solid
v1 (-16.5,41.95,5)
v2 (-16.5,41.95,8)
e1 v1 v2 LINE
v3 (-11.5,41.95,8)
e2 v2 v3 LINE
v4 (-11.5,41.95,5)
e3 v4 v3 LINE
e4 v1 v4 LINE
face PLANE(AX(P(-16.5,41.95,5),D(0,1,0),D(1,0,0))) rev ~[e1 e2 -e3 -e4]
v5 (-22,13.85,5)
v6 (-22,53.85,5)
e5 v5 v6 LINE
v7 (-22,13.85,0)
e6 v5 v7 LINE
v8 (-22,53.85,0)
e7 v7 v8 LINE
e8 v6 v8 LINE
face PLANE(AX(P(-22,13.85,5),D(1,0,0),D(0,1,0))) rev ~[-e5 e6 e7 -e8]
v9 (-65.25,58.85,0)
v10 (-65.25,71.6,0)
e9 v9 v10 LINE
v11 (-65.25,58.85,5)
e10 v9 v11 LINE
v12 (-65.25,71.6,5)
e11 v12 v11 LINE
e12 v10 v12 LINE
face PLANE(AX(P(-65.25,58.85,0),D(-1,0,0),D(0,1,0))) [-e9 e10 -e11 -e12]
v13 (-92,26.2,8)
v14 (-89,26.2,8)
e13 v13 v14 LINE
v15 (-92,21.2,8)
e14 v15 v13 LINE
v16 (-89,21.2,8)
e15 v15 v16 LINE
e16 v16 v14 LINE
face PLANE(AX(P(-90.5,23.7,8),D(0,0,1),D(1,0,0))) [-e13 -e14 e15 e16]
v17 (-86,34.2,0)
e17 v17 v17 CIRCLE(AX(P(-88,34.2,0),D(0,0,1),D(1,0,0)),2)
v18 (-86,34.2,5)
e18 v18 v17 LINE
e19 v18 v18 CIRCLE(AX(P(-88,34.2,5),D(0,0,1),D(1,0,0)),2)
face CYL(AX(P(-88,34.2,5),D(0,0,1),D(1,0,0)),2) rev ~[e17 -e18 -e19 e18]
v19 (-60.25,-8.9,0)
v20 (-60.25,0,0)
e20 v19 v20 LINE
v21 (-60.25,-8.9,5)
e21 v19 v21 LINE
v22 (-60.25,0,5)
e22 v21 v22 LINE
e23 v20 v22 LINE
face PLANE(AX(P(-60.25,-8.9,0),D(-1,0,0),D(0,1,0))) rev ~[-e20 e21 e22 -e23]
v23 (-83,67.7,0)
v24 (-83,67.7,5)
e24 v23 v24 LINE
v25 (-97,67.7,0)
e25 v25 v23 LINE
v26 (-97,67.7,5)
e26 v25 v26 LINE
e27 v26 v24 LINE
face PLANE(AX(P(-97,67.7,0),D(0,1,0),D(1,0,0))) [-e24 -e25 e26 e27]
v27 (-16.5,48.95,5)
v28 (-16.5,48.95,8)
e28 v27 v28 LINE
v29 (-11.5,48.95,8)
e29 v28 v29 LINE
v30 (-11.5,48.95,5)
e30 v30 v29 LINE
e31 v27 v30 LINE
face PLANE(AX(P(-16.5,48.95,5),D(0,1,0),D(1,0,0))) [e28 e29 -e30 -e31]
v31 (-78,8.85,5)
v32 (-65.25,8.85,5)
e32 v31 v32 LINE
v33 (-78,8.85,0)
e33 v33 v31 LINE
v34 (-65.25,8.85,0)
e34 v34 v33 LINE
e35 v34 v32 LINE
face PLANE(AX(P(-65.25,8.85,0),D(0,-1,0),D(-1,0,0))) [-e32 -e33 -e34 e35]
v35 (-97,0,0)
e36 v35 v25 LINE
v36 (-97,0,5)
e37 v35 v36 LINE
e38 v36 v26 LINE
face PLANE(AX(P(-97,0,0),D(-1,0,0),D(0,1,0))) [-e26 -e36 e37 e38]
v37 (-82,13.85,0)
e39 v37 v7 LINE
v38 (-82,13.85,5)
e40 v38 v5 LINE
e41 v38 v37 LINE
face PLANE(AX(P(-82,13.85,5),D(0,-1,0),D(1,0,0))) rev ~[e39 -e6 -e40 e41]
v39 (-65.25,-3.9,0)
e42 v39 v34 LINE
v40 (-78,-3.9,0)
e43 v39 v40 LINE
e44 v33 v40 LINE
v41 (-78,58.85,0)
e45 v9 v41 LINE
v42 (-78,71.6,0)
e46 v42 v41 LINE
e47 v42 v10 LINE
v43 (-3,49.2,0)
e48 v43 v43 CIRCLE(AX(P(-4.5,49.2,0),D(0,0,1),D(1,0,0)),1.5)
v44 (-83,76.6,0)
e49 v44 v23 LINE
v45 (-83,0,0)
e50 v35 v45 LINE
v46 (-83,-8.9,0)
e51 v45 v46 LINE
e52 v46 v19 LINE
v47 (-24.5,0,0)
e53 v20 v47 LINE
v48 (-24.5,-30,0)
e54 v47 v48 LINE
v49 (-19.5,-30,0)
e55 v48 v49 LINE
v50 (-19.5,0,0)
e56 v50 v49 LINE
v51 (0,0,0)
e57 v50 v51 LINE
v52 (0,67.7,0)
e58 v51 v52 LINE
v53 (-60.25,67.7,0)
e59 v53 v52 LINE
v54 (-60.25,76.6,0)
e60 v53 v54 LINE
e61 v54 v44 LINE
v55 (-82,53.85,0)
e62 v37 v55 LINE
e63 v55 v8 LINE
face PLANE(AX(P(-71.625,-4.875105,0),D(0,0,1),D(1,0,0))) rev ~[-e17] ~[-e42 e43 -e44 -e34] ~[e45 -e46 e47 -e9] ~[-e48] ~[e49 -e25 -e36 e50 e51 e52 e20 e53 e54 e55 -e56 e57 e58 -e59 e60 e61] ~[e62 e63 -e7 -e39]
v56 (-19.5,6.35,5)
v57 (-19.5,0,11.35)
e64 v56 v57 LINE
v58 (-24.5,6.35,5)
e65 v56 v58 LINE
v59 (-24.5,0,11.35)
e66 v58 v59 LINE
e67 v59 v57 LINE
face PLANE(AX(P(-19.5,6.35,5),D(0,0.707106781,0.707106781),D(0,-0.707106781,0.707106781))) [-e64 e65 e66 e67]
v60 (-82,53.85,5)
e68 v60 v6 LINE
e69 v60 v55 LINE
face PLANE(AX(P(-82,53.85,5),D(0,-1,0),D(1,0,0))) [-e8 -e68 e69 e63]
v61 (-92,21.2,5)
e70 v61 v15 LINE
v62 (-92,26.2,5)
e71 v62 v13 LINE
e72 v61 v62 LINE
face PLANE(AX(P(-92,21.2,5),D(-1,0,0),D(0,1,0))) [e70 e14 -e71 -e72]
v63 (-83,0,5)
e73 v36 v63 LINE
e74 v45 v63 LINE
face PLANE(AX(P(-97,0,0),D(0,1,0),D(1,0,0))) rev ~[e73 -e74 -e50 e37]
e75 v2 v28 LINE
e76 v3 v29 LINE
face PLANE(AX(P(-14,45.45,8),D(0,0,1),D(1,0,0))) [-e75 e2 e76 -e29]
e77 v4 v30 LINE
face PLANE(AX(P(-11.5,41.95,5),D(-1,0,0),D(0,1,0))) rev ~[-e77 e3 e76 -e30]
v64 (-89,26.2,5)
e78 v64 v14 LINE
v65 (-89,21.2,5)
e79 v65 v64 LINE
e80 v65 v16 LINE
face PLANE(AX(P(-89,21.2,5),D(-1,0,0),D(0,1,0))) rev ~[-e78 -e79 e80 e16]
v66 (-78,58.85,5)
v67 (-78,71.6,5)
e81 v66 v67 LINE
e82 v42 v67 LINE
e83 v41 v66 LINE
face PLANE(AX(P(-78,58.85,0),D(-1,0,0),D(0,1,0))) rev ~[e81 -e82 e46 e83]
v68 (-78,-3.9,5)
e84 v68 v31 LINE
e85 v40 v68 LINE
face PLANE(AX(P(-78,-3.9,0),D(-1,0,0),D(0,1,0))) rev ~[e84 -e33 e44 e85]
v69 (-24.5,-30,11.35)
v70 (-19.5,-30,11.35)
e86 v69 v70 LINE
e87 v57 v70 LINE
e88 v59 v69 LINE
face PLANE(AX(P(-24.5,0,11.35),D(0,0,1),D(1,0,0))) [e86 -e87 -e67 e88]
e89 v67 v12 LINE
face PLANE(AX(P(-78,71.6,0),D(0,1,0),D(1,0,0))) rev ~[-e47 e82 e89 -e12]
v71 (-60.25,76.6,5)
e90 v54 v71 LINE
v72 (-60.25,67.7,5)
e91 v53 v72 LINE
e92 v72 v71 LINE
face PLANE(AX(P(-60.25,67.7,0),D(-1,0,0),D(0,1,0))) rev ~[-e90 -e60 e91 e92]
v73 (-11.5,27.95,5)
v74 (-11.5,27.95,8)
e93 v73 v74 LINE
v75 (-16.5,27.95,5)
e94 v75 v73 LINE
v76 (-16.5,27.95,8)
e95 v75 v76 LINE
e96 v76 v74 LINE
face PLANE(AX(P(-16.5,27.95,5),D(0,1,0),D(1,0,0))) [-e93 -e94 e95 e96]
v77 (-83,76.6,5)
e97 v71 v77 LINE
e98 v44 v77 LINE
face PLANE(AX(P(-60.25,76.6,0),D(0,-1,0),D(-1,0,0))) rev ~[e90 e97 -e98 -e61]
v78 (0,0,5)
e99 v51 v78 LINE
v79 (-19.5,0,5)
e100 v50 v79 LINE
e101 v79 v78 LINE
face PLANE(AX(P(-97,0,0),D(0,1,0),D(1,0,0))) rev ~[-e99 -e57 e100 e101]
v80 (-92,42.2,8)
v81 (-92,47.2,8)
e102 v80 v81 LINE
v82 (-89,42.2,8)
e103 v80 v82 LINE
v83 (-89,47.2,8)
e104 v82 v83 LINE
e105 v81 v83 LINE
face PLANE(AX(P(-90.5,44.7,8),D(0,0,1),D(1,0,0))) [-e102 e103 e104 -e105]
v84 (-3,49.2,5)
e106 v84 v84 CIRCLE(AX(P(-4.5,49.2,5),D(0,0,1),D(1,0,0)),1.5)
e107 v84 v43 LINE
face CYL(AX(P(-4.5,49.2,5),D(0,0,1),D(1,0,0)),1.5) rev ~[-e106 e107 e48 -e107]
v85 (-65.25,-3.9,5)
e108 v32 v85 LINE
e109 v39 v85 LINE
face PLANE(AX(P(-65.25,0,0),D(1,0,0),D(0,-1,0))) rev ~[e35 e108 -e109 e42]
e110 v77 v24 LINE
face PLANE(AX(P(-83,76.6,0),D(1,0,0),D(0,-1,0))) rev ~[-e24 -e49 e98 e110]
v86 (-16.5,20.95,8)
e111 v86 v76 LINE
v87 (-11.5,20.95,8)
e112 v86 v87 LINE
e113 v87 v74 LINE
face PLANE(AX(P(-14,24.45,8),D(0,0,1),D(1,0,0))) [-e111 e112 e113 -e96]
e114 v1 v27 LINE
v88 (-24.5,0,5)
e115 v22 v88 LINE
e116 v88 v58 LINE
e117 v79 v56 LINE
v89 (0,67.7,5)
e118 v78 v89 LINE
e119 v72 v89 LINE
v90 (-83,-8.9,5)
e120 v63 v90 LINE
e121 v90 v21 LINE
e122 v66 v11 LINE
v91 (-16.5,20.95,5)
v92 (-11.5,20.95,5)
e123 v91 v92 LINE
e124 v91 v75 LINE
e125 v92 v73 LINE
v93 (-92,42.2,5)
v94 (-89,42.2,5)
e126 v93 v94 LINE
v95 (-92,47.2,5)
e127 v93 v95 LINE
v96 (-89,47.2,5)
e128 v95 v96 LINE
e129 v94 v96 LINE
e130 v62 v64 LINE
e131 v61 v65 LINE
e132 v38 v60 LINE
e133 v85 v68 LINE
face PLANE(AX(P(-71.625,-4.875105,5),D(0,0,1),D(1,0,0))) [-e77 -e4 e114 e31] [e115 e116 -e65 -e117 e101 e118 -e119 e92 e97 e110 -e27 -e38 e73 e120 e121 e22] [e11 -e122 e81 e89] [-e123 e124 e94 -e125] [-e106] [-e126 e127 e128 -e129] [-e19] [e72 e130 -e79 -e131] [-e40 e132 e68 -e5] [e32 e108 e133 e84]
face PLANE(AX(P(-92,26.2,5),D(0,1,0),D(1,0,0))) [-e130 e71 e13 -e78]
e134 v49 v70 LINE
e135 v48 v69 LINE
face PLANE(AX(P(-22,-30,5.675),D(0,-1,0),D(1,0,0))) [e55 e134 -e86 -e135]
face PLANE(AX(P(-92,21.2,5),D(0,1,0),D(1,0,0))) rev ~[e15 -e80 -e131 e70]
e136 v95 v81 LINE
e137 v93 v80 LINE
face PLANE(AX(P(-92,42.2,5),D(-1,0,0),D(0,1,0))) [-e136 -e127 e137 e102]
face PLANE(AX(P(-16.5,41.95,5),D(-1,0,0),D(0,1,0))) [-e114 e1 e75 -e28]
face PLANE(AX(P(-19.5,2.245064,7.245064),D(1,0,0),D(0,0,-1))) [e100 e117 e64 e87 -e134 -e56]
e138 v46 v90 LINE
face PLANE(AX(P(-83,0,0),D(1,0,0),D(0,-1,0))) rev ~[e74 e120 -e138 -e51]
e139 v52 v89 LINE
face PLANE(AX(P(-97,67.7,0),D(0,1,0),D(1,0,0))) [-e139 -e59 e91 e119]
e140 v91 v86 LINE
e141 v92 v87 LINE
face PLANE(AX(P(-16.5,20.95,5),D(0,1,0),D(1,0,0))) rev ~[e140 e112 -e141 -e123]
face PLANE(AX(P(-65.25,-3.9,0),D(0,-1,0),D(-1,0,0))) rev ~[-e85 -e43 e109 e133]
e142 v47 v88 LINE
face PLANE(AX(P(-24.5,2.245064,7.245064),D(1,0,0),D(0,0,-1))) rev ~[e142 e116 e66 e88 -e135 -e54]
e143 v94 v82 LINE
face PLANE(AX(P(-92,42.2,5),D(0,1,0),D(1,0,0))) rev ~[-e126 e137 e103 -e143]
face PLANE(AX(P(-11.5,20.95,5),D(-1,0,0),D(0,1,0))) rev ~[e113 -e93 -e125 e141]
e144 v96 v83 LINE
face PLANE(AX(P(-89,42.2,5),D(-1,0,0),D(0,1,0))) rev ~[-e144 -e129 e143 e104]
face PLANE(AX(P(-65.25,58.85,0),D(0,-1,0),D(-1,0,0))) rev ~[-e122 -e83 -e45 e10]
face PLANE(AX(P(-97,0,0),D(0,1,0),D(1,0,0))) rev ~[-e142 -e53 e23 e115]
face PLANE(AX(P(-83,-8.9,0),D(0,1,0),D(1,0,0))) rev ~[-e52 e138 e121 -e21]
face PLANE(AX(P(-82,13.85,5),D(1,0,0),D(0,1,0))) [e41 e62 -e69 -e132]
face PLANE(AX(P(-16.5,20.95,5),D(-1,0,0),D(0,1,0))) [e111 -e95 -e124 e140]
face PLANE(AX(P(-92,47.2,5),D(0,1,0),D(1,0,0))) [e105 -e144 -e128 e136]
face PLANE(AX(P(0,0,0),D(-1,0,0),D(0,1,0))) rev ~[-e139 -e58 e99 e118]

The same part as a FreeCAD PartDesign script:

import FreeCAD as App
import Part
import Sketcher
from FreeCAD import Vector


def add_polygon(sketch, points):
    """Adds a closed chain of lines whose ends are joined by coincident constraints."""
    first, n = sketch.GeometryCount, len(points)
    for a, b in zip(points, points[1:] + points[:1]):
        sketch.addGeometry(Part.LineSegment(App.Vector(*a, 0), App.Vector(*b, 0)), False)
    for i in range(n):
        sketch.addConstraint(Sketcher.Constraint("Coincident", first + i, 2, first + (i + 1) % n, 1))

doc = App.newDocument("Part")
body = doc.addObject("PartDesign::Body", "Body")

# Sketch on XY plane
sketch1 = body.newObject("Sketcher::SketchObject", "Sketch")
sketch1.AttachmentSupport = (doc.getObject("XY_Plane"), [""])
sketch1.MapMode = "FlatFace"
add_polygon(sketch1, [(-97, 68), (-97, 0), (0, 0), (0, 68)])  # lines 0-3
sketch1.addConstraint(Sketcher.Constraint("Vertical", 0))
sketch1.addConstraint(Sketcher.Constraint("Horizontal", 1))
sketch1.addConstraint(Sketcher.Constraint("Vertical", 2))
sketch1.addConstraint(Sketcher.Constraint("Horizontal", 3))
sketch1.addConstraint(Sketcher.Constraint("Coincident", 1, 2, -1, 1))
sketch1.addConstraint(Sketcher.Constraint("DistanceX", 1, 1, 1, 2, 97.0))
sketch1.addConstraint(Sketcher.Constraint("DistanceY", 0, 2, 0, 1, 67.7))
pad1 = body.newObject("PartDesign::Pad", "Pad")
pad1.Profile = sketch1
pad1.Length = 5

# Sketch on XY plane
sketch2 = body.newObject("Sketcher::SketchObject", "Sketch001")
sketch2.AttachmentSupport = (doc.getObject("XY_Plane"), [""])
sketch2.MapMode = "FlatFace"
sketch2.AttachmentOffset = App.Placement(Vector(0, 0, 5), App.Rotation())
sketch2.addGeometry(Part.Circle(Vector(-88, 34.2, 0), Vector(0, 0, 1), 2), False)  # 0
sketch2.addGeometry(Part.Circle(Vector(-4.5, 49.2, 0), Vector(0, 0, 1), 1.5), False)  # 1
add_polygon(sketch2, [(-82, 53.9), (-82, 13.8), (-22, 13.8), (-22, 53.9)])  # lines 2-5
sketch2.addConstraint(Sketcher.Constraint("Vertical", 2))
sketch2.addConstraint(Sketcher.Constraint("Horizontal", 3))
sketch2.addConstraint(Sketcher.Constraint("Vertical", 4))
sketch2.addConstraint(Sketcher.Constraint("Horizontal", 5))
sketch2.addConstraint(Sketcher.Constraint("Diameter", 0, 4.0))
sketch2.addConstraint(Sketcher.Constraint("Diameter", 1, 3.0))
sketch2.addConstraint(Sketcher.Constraint("DistanceX", 3, 1, 3, 2, 60.0))
sketch2.addConstraint(Sketcher.Constraint("DistanceY", 2, 2, 2, 1, 40.0))
sketch2.addConstraint(Sketcher.Constraint("DistanceX", 0, 3, -1, 1, 88.0))
sketch2.addConstraint(Sketcher.Constraint("DistanceX", 2, 2, -1, 1, 82.0))
sketch2.addConstraint(Sketcher.Constraint("DistanceY", 0, 3, 1, 3, 15.0))
sketch2.addConstraint(Sketcher.Constraint("DistanceY", -1, 1, 0, 3, 34.2))
sketch2.addConstraint(Sketcher.Constraint("DistanceX", 1, 3, -1, 1, 4.5))
sketch2.addConstraint(Sketcher.Constraint("DistanceY", -1, 1, 2, 2, 13.85))
pocket1 = body.newObject("PartDesign::Pocket", "Pocket")
pocket1.Profile = sketch2
pocket1.Type = "ThroughAll"

# Sketch on XY plane
sketch3 = body.newObject("Sketcher::SketchObject", "Sketch002")
sketch3.AttachmentSupport = (doc.getObject("XY_Plane"), [""])
sketch3.MapMode = "FlatFace"
sketch3.AttachmentOffset = App.Placement(Vector(0, 0, 5), App.Rotation())
add_polygon(sketch3, [(-92, 47.2), (-92, 42.2), (-89, 42.2), (-89, 47.2)])  # lines 0-3
add_polygon(sketch3, [(-92, 26.2), (-92, 21.2), (-89, 21.2), (-89, 26.2)])  # lines 4-7
add_polygon(sketch3, [(-16.5, 49), (-16.5, 42), (-11.5, 42), (-11.5, 49)])  # lines 8-11
add_polygon(sketch3, [(-16.5, 27.9), (-16.5, 20.9), (-11.5, 20.9), (-11.5, 27.9)])  # lines 12-15
sketch3.addConstraint(Sketcher.Constraint("Vertical", 0))
sketch3.addConstraint(Sketcher.Constraint("Horizontal", 1))
sketch3.addConstraint(Sketcher.Constraint("Vertical", 2))
sketch3.addConstraint(Sketcher.Constraint("Horizontal", 3))
sketch3.addConstraint(Sketcher.Constraint("Vertical", 4))
sketch3.addConstraint(Sketcher.Constraint("Horizontal", 5))
sketch3.addConstraint(Sketcher.Constraint("Vertical", 6))
sketch3.addConstraint(Sketcher.Constraint("Horizontal", 7))
sketch3.addConstraint(Sketcher.Constraint("Vertical", 8))
sketch3.addConstraint(Sketcher.Constraint("Horizontal", 9))
sketch3.addConstraint(Sketcher.Constraint("Vertical", 10))
sketch3.addConstraint(Sketcher.Constraint("Horizontal", 11))
sketch3.addConstraint(Sketcher.Constraint("Vertical", 12))
sketch3.addConstraint(Sketcher.Constraint("Horizontal", 13))
sketch3.addConstraint(Sketcher.Constraint("Vertical", 14))
sketch3.addConstraint(Sketcher.Constraint("Horizontal", 15))
sketch3.addConstraint(Sketcher.Constraint("Vertical", 3, 2, 4, 2))
sketch3.addConstraint(Sketcher.Constraint("Vertical", 2, 2, 5, 2))
sketch3.addConstraint(Sketcher.Constraint("Vertical", 11, 2, 12, 2))
sketch3.addConstraint(Sketcher.Constraint("Vertical", 10, 2, 13, 2))
sketch3.addConstraint(Sketcher.Constraint("Equal", 15, 0))
sketch3.addConstraint(Sketcher.Constraint("Equal", 2, 4))
sketch3.addConstraint(Sketcher.Constraint("Equal", 10, 12))
sketch3.addConstraint(Sketcher.Constraint("DistanceX", 1, 1, 1, 2, 3.0))
sketch3.addConstraint(Sketcher.Constraint("DistanceX", 9, 1, 9, 2, 5.0))
sketch3.addConstraint(Sketcher.Constraint("DistanceY", 8, 2, 8, 1, 7.0))
sketch3.addConstraint(Sketcher.Constraint("DistanceX", 0, 2, -1, 1, 92.0))
sketch3.addConstraint(Sketcher.Constraint("DistanceY", 4, 2, 0, 2, 21.0))
sketch3.addConstraint(Sketcher.Constraint("DistanceY", 12, 2, 8, 2, 21.0))
sketch3.addConstraint(Sketcher.Constraint("DistanceY", -1, 1, 0, 2, 42.2))
sketch3.addConstraint(Sketcher.Constraint("DistanceX", 8, 2, -1, 1, 16.5))
sketch3.addConstraint(Sketcher.Constraint("DistanceY", -1, 1, 8, 2, 41.95))
pad2 = body.newObject("PartDesign::Pad", "Pad001")
pad2.Profile = sketch3
pad2.Length = 3

# Sketch on XZ plane
sketch4 = body.newObject("Sketcher::SketchObject", "Sketch003")
sketch4.AttachmentSupport = (doc.getObject("XZ_Plane"), [""])
sketch4.MapMode = "FlatFace"
add_polygon(sketch4, [(-24, 11), (-24, 0), (-20, 0), (-20, 11)])  # lines 0-3
sketch4.addConstraint(Sketcher.Constraint("Vertical", 0))
sketch4.addConstraint(Sketcher.Constraint("Horizontal", 1))
sketch4.addConstraint(Sketcher.Constraint("Vertical", 2))
sketch4.addConstraint(Sketcher.Constraint("Horizontal", 3))
sketch4.addConstraint(Sketcher.Constraint("PointOnObject", 0, 2, -1))
sketch4.addConstraint(Sketcher.Constraint("DistanceX", 1, 1, 1, 2, 5.0))
sketch4.addConstraint(Sketcher.Constraint("DistanceY", 0, 2, 0, 1, 11.35))
sketch4.addConstraint(Sketcher.Constraint("DistanceX", 0, 2, -1, 1, 24.5))
pad3 = body.newObject("PartDesign::Pad", "Pad002")
pad3.Profile = sketch4
pad3.Length = 30

# Sketch on YZ plane
sketch5 = body.newObject("Sketcher::SketchObject", "Sketch004")
sketch5.AttachmentSupport = (doc.getObject("YZ_Plane"), [""])
sketch5.MapMode = "FlatFace"
sketch5.AttachmentOffset = App.Placement(Vector(0, 0, -19.5), App.Rotation())
add_polygon(sketch5, [(0, 11), (0, 5), (6, 5)])  # lines 0-2
sketch5.addConstraint(Sketcher.Constraint("Vertical", 0))
sketch5.addConstraint(Sketcher.Constraint("Horizontal", 1))
sketch5.addConstraint(Sketcher.Constraint("PointOnObject", 0, 2, -2))
sketch5.addConstraint(Sketcher.Constraint("Equal", 1, 0))
sketch5.addConstraint(Sketcher.Constraint("DistanceY", -1, 1, 0, 2, 5.0))
sketch5.addConstraint(Sketcher.Constraint("DistanceX", 1, 1, 1, 2, 6.35))
pad4 = body.newObject("PartDesign::Pad", "Pad003")
pad4.Profile = sketch5
pad4.Length = 5
pad4.Reversed = True

# Sketch on XY plane
sketch6 = body.newObject("Sketcher::SketchObject", "Sketch005")
sketch6.AttachmentSupport = (doc.getObject("XY_Plane"), [""])
sketch6.MapMode = "FlatFace"
add_polygon(sketch6, [(-65, 72), (-65, 59), (-78, 59), (-78, 72)])  # lines 0-3
add_polygon(sketch6, [(-65, 9), (-65, -4), (-78, -4), (-78, 9)])  # lines 4-7
sketch6.addConstraint(Sketcher.Constraint("Vertical", 0))
sketch6.addConstraint(Sketcher.Constraint("Horizontal", 1))
sketch6.addConstraint(Sketcher.Constraint("Vertical", 2))
sketch6.addConstraint(Sketcher.Constraint("Horizontal", 3))
sketch6.addConstraint(Sketcher.Constraint("Vertical", 4))
sketch6.addConstraint(Sketcher.Constraint("Horizontal", 5))
sketch6.addConstraint(Sketcher.Constraint("Vertical", 6))
sketch6.addConstraint(Sketcher.Constraint("Horizontal", 7))
sketch6.addConstraint(Sketcher.Constraint("Vertical", 3, 2, 4, 2))
sketch6.addConstraint(Sketcher.Constraint("Vertical", 2, 2, 5, 2))
sketch6.addConstraint(Sketcher.Constraint("Equal", 7, 0))
sketch6.addConstraint(Sketcher.Constraint("Equal", 2, 4))
sketch6.addConstraint(Sketcher.Constraint("DistanceX", 1, 2, -1, 1, 78.0))
sketch6.addConstraint(Sketcher.Constraint("DistanceY", 6, 2, 1, 2, 50.0))
sketch6.addConstraint(Sketcher.Constraint("DistanceX", 1, 2, 1, 1, 12.75))
sketch6.addConstraint(Sketcher.Constraint("DistanceY", -1, 1, 2, 2, 71.6))
pocket2 = body.newObject("PartDesign::Pocket", "Pocket001")
pocket2.Profile = sketch6
pocket2.Type = "ThroughAll"
pocket2.Reversed = True

# Sketch on XY plane
sketch7 = body.newObject("Sketcher::SketchObject", "Sketch006")
sketch7.AttachmentSupport = (doc.getObject("XY_Plane"), [""])
sketch7.MapMode = "FlatFace"
add_polygon(sketch7, [(-83, -8.9), (-83, 0), (-78, 0), (-78, -3.9), (-65.2, -3.9), (-65.2, 0), (-60.2, 0), (-60.2, -8.9)])  # lines 0-7
add_polygon(sketch7, [(-78, 67.7), (-83, 67.7), (-83, 76.6), (-60.2, 76.6), (-60.2, 67.7), (-65.2, 67.7), (-65.2, 71.6), (-78, 71.6)])  # lines 8-15
sketch7.addConstraint(Sketcher.Constraint("Vertical", 0))
sketch7.addConstraint(Sketcher.Constraint("Horizontal", 1))
sketch7.addConstraint(Sketcher.Constraint("Vertical", 2))
sketch7.addConstraint(Sketcher.Constraint("Horizontal", 3))
sketch7.addConstraint(Sketcher.Constraint("Vertical", 4))
sketch7.addConstraint(Sketcher.Constraint("Horizontal", 5))
sketch7.addConstraint(Sketcher.Constraint("Vertical", 6))
sketch7.addConstraint(Sketcher.Constraint("Horizontal", 7))
sketch7.addConstraint(Sketcher.Constraint("Horizontal", 8))
sketch7.addConstraint(Sketcher.Constraint("Vertical", 9))
sketch7.addConstraint(Sketcher.Constraint("Horizontal", 10))
sketch7.addConstraint(Sketcher.Constraint("Vertical", 11))
sketch7.addConstraint(Sketcher.Constraint("Horizontal", 12))
sketch7.addConstraint(Sketcher.Constraint("Vertical", 13))
sketch7.addConstraint(Sketcher.Constraint("Horizontal", 14))
sketch7.addConstraint(Sketcher.Constraint("Vertical", 15))
sketch7.addConstraint(Sketcher.Constraint("PointOnObject", 0, 2, -1))
sketch7.addConstraint(Sketcher.Constraint("PointOnObject", 4, 2, -1))
sketch7.addConstraint(Sketcher.Constraint("Horizontal", 8, 2, 11, 2))
sketch7.addConstraint(Sketcher.Constraint("Vertical", 7, 2, 8, 2))
sketch7.addConstraint(Sketcher.Constraint("Vertical", 6, 2, 10, 2))
sketch7.addConstraint(Sketcher.Constraint("Vertical", 4, 2, 12, 2))
sketch7.addConstraint(Sketcher.Constraint("Vertical", 2, 2, 14, 2))
sketch7.addConstraint(Sketcher.Constraint("Equal", 1, 5))
sketch7.addConstraint(Sketcher.Constraint("Equal", 6, 9))
sketch7.addConstraint(Sketcher.Constraint("Equal", 4, 13))
sketch7.addConstraint(Sketcher.Constraint("DistanceX", 1, 1, 1, 2, 5.0))
sketch7.addConstraint(Sketcher.Constraint("DistanceY", 0, 1, 0, 2, 8.9))
sketch7.addConstraint(Sketcher.Constraint("DistanceY", 2, 2, 2, 1, 3.9))
sketch7.addConstraint(Sketcher.Constraint("DistanceX", 0, 2, -1, 1, 83.0))
sketch7.addConstraint(Sketcher.Constraint("DistanceX", 3, 1, 3, 2, 12.75))
sketch7.addConstraint(Sketcher.Constraint("DistanceY", -1, 1, 8, 2, 67.7))
pad5 = body.newObject("PartDesign::Pad", "Pad004")
pad5.Profile = sketch7
pad5.Length = 5

doc.recompute()
